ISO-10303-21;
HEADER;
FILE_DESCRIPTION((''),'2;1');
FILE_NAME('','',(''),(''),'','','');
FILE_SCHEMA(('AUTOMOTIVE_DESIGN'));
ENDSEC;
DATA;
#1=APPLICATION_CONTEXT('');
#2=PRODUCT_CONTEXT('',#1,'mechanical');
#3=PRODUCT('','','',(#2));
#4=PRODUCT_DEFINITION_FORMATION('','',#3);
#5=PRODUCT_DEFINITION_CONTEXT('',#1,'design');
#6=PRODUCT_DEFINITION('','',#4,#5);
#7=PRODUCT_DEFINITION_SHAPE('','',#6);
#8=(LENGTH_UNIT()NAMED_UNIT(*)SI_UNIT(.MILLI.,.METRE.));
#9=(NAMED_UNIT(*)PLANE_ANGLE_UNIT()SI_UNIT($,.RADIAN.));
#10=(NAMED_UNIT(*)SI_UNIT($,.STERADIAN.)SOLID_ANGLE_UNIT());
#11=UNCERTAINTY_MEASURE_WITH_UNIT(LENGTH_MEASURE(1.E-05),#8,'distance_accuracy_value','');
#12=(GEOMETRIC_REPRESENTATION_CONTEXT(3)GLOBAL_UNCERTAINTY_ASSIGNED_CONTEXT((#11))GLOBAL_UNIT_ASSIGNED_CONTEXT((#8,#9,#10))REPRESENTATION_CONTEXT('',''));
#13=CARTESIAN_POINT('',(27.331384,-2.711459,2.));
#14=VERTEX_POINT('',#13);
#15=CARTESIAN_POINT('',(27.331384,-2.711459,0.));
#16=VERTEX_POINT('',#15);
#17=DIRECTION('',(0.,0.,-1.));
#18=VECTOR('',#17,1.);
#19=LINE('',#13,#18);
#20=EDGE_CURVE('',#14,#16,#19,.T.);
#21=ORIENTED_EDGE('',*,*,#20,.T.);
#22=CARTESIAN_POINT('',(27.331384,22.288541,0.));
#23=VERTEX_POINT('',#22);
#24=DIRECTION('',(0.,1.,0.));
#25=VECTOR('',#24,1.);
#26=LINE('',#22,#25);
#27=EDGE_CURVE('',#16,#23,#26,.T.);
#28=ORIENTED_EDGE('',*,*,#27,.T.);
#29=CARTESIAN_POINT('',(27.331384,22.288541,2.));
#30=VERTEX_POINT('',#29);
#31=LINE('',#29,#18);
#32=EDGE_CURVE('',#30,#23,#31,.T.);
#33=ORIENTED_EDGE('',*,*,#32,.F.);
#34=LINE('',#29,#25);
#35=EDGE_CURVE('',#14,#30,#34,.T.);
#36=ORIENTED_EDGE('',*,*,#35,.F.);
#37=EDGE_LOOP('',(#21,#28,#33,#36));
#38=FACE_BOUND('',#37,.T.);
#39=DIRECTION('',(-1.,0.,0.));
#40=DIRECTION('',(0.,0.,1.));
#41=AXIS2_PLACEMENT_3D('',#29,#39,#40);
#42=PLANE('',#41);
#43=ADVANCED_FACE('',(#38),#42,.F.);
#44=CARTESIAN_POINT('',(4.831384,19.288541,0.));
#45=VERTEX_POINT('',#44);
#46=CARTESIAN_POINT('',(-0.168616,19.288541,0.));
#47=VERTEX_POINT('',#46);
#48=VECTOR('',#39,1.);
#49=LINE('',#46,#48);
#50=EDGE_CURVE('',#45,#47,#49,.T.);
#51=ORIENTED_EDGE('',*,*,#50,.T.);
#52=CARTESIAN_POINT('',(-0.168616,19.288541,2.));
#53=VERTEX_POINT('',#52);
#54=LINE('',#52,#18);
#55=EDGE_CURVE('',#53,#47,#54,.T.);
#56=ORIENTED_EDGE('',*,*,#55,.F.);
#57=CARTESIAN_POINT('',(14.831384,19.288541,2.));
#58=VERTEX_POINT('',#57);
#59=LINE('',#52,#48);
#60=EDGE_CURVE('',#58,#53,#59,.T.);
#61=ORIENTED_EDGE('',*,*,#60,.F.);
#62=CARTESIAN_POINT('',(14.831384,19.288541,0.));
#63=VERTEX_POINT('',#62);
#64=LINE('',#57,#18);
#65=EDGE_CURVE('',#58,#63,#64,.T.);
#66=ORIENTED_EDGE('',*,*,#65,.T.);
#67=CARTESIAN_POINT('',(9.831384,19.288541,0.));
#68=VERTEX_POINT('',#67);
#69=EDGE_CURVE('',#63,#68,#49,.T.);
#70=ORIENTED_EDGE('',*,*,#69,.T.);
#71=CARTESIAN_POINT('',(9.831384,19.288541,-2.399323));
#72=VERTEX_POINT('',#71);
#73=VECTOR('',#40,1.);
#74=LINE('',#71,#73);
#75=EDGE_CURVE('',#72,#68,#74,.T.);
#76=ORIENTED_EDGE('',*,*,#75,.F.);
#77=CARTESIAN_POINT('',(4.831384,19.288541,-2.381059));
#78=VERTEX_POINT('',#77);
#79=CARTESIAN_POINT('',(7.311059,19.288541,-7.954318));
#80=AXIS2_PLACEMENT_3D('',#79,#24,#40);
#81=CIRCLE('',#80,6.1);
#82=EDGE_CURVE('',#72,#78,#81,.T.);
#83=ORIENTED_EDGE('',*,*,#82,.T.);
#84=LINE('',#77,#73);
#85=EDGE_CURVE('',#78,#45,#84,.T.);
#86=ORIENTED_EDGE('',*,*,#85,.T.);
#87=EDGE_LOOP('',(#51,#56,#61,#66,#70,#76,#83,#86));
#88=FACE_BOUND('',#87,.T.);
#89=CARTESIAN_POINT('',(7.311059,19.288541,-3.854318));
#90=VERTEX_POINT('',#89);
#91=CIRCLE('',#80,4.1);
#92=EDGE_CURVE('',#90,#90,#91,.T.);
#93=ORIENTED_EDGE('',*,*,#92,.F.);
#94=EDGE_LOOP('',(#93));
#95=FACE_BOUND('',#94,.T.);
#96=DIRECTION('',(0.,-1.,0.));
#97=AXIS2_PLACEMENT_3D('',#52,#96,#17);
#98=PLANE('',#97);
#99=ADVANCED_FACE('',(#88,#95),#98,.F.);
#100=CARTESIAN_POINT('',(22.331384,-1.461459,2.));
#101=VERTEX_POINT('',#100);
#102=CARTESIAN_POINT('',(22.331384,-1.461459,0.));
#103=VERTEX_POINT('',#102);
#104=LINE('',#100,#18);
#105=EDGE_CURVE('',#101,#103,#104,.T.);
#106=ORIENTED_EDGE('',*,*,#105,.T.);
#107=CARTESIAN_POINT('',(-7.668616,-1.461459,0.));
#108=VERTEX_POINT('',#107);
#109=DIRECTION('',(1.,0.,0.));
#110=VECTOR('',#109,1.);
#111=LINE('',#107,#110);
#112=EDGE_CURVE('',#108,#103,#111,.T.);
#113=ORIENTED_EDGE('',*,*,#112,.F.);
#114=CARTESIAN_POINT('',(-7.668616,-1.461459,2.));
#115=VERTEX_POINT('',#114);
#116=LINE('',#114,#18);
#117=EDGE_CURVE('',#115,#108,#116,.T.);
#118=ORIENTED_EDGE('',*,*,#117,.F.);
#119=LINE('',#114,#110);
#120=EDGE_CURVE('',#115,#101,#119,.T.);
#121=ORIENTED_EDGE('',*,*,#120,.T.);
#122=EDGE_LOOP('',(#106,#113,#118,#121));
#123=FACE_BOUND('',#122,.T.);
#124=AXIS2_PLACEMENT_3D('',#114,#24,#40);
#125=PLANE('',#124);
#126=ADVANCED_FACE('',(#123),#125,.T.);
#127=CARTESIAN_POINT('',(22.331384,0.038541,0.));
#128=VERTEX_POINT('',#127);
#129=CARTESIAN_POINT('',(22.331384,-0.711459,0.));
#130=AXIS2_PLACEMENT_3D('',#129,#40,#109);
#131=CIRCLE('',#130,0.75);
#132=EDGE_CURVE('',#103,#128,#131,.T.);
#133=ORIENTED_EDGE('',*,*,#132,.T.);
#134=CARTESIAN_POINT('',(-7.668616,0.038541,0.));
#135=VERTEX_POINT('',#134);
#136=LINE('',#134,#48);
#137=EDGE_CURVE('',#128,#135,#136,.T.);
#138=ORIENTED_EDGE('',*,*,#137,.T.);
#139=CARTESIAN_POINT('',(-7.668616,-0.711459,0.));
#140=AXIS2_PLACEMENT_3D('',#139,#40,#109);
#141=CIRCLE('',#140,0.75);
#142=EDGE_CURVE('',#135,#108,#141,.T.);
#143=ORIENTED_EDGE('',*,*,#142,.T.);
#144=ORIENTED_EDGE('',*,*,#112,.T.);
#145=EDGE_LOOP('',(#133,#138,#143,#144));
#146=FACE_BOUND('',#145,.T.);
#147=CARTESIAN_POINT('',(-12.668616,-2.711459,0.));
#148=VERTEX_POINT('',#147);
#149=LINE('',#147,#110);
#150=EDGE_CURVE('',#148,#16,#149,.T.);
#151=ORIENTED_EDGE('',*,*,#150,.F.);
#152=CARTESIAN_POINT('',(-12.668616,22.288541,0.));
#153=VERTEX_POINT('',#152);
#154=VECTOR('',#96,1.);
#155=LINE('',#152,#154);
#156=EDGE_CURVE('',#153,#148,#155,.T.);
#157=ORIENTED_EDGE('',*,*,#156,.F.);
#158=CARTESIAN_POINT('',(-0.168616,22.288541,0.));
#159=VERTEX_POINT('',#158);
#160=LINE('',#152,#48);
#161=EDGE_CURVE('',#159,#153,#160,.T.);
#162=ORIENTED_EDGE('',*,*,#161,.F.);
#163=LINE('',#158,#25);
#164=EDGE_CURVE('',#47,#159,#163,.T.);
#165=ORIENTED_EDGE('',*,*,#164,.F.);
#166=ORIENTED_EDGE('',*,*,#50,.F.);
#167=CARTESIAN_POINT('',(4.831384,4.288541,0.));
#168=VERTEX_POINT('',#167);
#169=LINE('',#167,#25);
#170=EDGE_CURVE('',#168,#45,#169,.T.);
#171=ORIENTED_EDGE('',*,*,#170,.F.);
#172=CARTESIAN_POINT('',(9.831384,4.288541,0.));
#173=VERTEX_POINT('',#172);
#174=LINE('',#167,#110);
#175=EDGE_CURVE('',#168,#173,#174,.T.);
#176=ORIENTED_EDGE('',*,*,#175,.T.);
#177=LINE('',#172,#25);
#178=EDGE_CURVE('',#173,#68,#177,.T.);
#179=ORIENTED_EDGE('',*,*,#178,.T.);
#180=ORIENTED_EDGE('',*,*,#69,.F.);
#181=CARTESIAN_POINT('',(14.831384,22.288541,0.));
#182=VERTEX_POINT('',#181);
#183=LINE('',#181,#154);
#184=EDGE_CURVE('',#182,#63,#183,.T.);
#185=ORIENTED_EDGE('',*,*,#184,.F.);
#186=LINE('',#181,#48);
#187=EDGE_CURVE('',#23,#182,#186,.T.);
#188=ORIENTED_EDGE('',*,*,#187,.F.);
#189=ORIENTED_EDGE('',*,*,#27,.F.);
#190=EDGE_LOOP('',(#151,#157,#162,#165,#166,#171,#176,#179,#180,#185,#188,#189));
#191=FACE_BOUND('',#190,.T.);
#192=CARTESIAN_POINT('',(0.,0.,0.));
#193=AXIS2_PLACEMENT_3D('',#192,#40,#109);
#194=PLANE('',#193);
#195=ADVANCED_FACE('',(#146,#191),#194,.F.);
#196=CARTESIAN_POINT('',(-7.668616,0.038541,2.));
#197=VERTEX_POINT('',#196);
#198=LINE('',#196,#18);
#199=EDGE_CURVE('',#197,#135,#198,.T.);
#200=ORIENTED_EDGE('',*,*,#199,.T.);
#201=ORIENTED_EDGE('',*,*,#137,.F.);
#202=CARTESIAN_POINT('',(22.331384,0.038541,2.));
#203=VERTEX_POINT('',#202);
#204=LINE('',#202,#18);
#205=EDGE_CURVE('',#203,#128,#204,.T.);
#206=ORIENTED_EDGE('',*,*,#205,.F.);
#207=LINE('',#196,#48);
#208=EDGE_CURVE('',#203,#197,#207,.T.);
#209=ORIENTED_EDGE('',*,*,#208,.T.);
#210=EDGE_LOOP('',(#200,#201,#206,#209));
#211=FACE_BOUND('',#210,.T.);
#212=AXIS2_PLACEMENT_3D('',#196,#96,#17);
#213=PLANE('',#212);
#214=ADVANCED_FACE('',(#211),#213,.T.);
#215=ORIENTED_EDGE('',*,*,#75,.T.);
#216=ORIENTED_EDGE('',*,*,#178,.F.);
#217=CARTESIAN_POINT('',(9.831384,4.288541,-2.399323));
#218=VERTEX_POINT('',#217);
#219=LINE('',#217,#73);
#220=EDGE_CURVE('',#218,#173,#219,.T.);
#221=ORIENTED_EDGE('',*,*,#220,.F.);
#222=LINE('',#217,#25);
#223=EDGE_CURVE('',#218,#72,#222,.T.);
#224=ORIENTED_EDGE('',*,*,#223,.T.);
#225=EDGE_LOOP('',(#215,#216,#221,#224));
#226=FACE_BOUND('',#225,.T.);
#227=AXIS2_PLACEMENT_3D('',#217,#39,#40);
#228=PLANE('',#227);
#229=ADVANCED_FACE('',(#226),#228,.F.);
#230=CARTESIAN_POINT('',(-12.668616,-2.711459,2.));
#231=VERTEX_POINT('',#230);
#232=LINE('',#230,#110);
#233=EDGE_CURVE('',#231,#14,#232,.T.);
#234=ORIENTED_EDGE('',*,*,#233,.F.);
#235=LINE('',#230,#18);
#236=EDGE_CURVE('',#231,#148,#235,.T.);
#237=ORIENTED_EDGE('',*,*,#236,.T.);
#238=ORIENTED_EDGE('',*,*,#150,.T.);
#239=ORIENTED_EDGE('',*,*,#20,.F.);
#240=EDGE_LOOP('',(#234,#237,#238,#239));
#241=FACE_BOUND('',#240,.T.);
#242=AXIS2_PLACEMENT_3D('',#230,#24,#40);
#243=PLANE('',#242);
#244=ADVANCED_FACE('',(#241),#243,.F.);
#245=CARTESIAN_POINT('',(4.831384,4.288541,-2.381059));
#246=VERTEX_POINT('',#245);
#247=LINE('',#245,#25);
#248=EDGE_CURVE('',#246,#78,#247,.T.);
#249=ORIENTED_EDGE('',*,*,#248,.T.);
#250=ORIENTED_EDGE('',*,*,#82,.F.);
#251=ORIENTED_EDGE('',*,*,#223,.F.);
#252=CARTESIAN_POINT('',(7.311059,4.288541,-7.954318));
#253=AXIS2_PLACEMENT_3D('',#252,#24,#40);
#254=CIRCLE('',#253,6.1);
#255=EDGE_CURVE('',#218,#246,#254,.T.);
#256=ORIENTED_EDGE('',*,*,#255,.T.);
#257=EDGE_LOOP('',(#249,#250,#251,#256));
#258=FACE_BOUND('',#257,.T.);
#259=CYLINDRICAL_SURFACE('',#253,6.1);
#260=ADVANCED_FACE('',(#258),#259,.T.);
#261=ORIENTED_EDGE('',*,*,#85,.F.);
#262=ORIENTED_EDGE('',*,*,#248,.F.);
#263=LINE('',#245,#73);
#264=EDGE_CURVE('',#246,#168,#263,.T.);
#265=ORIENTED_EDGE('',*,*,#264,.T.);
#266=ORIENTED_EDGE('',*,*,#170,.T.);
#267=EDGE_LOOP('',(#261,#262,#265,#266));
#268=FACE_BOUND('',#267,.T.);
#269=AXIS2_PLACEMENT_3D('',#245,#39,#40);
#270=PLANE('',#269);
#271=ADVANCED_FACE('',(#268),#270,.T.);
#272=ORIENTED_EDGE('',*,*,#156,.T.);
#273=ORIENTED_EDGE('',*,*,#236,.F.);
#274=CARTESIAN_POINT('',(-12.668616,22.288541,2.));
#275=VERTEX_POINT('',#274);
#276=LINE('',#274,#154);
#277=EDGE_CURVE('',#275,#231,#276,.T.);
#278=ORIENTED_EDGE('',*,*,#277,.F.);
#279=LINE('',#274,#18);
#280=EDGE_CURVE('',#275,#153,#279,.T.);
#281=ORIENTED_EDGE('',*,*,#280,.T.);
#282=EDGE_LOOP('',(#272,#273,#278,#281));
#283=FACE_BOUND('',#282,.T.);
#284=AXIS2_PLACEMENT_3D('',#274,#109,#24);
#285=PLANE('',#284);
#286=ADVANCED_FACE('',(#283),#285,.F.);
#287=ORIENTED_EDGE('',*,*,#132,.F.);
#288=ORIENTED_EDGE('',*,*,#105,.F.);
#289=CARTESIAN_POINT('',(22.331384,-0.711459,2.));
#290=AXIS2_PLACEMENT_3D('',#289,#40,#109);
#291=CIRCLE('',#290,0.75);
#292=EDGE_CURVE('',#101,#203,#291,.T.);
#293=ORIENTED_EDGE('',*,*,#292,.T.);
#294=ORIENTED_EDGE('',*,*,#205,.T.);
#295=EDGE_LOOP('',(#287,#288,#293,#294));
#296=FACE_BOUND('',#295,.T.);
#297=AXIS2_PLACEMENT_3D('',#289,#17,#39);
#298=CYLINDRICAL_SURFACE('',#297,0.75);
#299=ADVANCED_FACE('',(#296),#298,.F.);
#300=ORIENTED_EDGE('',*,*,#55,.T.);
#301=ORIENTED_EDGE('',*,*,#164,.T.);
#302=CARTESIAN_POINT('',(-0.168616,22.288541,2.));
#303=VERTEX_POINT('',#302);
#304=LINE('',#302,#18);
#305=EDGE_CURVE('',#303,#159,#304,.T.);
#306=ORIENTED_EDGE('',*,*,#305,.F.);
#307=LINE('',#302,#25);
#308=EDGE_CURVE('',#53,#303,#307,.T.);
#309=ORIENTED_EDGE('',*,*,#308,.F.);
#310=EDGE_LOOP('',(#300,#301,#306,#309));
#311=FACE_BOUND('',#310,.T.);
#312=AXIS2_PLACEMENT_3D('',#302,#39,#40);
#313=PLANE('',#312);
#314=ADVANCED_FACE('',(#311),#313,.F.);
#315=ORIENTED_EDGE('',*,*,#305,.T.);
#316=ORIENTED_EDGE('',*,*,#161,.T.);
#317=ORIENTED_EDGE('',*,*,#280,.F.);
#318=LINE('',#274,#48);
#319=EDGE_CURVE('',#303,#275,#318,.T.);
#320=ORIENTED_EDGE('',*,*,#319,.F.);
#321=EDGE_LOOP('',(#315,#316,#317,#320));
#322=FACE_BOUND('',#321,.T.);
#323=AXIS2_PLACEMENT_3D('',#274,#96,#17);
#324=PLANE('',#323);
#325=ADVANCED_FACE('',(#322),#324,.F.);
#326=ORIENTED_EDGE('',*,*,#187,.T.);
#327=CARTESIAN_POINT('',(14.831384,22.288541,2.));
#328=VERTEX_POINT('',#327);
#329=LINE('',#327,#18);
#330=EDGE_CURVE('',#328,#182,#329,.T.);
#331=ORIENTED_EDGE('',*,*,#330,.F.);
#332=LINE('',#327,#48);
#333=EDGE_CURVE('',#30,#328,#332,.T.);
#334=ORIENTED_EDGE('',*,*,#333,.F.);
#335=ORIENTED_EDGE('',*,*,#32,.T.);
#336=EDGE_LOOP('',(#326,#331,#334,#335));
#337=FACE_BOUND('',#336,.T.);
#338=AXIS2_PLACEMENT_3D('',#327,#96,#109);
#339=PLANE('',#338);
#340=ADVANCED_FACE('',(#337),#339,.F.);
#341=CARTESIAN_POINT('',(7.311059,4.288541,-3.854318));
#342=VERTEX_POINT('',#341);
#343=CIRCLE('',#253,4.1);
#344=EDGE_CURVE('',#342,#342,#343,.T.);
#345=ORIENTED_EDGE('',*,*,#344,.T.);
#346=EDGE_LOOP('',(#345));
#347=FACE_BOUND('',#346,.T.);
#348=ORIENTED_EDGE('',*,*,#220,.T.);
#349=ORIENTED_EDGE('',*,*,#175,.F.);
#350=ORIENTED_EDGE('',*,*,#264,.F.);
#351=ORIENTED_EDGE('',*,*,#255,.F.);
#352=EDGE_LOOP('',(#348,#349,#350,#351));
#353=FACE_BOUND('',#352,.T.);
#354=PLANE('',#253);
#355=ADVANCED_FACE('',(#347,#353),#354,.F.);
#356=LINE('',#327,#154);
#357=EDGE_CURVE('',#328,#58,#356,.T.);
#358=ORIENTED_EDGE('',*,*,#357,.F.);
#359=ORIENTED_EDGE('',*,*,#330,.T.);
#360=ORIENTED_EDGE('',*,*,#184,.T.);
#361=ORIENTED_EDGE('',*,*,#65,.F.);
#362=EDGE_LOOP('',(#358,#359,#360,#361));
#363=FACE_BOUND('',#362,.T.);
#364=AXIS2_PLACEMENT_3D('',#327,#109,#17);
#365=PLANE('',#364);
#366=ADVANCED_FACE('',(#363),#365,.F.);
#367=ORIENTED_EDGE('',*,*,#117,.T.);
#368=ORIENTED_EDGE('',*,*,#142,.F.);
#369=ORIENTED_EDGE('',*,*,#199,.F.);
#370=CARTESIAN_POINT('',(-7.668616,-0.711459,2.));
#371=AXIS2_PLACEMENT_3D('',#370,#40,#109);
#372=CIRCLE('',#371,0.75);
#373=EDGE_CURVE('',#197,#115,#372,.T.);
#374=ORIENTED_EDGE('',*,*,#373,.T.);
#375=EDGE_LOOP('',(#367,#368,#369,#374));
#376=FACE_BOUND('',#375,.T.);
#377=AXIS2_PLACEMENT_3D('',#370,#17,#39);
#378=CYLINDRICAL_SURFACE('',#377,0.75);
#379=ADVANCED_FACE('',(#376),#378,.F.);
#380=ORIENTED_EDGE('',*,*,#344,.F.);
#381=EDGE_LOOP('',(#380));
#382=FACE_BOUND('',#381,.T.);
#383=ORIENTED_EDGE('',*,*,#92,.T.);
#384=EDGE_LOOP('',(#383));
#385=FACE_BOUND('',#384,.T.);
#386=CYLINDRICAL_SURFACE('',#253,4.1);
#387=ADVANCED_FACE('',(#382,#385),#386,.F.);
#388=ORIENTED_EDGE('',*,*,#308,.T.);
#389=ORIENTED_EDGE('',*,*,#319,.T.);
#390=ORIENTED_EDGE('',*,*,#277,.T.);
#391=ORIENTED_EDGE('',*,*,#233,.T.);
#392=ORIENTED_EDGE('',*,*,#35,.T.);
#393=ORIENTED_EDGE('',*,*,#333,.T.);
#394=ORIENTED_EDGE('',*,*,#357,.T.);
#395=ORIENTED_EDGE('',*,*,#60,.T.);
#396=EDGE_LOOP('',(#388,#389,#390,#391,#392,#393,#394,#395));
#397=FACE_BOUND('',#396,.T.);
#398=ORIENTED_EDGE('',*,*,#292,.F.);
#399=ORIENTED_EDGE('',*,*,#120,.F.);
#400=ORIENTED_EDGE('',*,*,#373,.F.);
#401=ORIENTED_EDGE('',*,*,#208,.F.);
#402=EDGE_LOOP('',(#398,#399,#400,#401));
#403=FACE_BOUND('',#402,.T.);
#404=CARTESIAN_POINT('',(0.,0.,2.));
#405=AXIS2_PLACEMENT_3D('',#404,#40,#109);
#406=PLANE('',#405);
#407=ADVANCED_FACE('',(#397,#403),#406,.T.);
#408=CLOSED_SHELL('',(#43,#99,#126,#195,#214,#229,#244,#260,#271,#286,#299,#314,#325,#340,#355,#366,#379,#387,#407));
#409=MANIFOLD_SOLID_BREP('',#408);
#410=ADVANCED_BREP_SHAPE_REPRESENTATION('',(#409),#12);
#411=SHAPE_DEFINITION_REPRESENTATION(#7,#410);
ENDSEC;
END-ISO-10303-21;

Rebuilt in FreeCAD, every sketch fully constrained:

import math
import FreeCAD as App
import Part
import Sketcher
Q = App.Units.Quantity


def add_polygon(sketch, points):
    """Adds a closed chain of lines whose ends are joined by coincident constraints."""
    first, n = sketch.GeometryCount, len(points)
    for a, b in zip(points, points[1:] + points[:1]):
        sketch.addGeometry(Part.LineSegment(App.Vector(*a, 0), App.Vector(*b, 0)), False)
    for i in range(n):
        sketch.addConstraint(Sketcher.Constraint("Coincident", first + i, 2, first + (i + 1) % n, 1))

doc = App.newDocument("Part")
body = doc.addObject("PartDesign::Body", "Body")

sketch1 = body.newObject("Sketcher::SketchObject", "Sketch")
sketch1.AttachmentSupport = (doc.getObject("XY_Plane"), [""])
sketch1.MapMode = "FlatFace"
add_polygon(sketch1, [(-0.168616, 22.288541), (-12.668616, 22.288541), (-12.668616, -2.711459), (27.331384, -2.711459), (27.331384, 22.288541), (14.831384, 22.288541), (14.831384, 19.288541), (-0.168616, 19.288541)])
sketch1.addGeometry(Part.LineSegment(App.Vector(-7.668616, 0.038541, 0), App.Vector(22.331384, 0.038541, 0)), False)
sketch1.addGeometry(Part.ArcOfCircle(Part.Circle(App.Vector(22.331384, -0.711459, 0), App.Vector(0, 0, 1), 0.75), math.radians(-90), math.radians(90)), False)
sketch1.addGeometry(Part.LineSegment(App.Vector(22.331384, -1.461459, 0), App.Vector(-7.668616, -1.461459, 0)), False)
sketch1.addGeometry(Part.ArcOfCircle(Part.Circle(App.Vector(-7.668616, -0.711459, 0), App.Vector(0, 0, 1), 0.75), math.radians(90), math.radians(270)), False)
sketch1.addConstraint(Sketcher.Constraint("Tangent", 8, 2, 9, 2))
sketch1.addConstraint(Sketcher.Constraint("Tangent", 9, 1, 10, 1))
sketch1.addConstraint(Sketcher.Constraint("Tangent", 10, 2, 11, 2))
sketch1.addConstraint(Sketcher.Constraint("Tangent", 11, 1, 8, 1))
sketch1.addConstraint(Sketcher.Constraint("Horizontal", 0))
sketch1.addConstraint(Sketcher.Constraint("Vertical", 1))
sketch1.addConstraint(Sketcher.Constraint("Horizontal", 2))
sketch1.addConstraint(Sketcher.Constraint("Vertical", 3))
sketch1.addConstraint(Sketcher.Constraint("Horizontal", 4))
sketch1.addConstraint(Sketcher.Constraint("Vertical", 5))
sketch1.addConstraint(Sketcher.Constraint("Horizontal", 6))
sketch1.addConstraint(Sketcher.Constraint("Vertical", 7))
sketch1.addConstraint(Sketcher.Constraint("Horizontal", 8))
sketch1.addConstraint(Sketcher.Constraint("Horizontal", 10))
sketch1.addConstraint(Sketcher.Constraint("Horizontal", 0, 2, 3, 2))
sketch1.addConstraint(Sketcher.Constraint("Equal", 0, 4))
sketch1.addConstraint(Sketcher.Constraint("DistanceX", 2, 1, 2, 2, Q("40 mm")))
sketch1.addConstraint(Sketcher.Constraint("DistanceX", 6, 2, 6, 1, Q("15 mm")))
sketch1.addConstraint(Sketcher.Constraint("DistanceX", 8, 1, 8, 2, Q("30 mm")))
sketch1.addConstraint(Sketcher.Constraint("DistanceY", 1, 2, 1, 1, Q("25 mm")))
sketch1.addConstraint(Sketcher.Constraint("DistanceY", 5, 2, 5, 1, Q("3 mm")))
sketch1.addConstraint(Sketcher.Constraint("Radius", 9, Q("0.75 mm")))
sketch1.addConstraint(Sketcher.Constraint("DistanceX", 0, 2, 11, 3, Q("5 mm")))
sketch1.addConstraint(Sketcher.Constraint("DistanceY", 11, 3, 0, 2, Q("23 mm")))
sketch1.addConstraint(Sketcher.Constraint("DistanceY", 9, 3, -1, 1, Q("0.711459 mm")))
sketch1.addConstraint(Sketcher.Constraint("DistanceX", -1, 1, 9, 3, Q("22.331384 mm")))
pad1 = body.newObject("PartDesign::Pad", "Pad")
pad1.Profile = sketch1
pad1.Length = 2

sketch2 = body.newObject("Sketcher::SketchObject", "Sketch001")
sketch2.AttachmentSupport = (doc.getObject("XZ_Plane"), [""])
sketch2.MapMode = "FlatFace"
sketch2.AttachmentOffset = App.Placement(App.Vector(0, 0, -19.288541), App.Rotation())
sketch2.addGeometry(Part.LineSegment(App.Vector(4.831384, -2.381059, 0), App.Vector(4.831384, 0, 0)), False)
sketch2.addGeometry(Part.LineSegment(App.Vector(4.831384, 0, 0), App.Vector(9.831384, 0, 0)), False)
sketch2.addGeometry(Part.LineSegment(App.Vector(9.831384, 0, 0), App.Vector(9.831384, -2.399323, 0)), False)
sketch2.addGeometry(Part.ArcOfCircle(Part.Circle(App.Vector(7.311059, -7.954318, 0), App.Vector(0, 0, 1), 6.1), math.radians(113.985414), math.radians(425.595996)), False)
sketch2.addGeometry(Part.Circle(App.Vector(7.311059, -7.954318, 0), App.Vector(0, 0, 1), 4.1), False)
sketch2.addConstraint(Sketcher.Constraint("Coincident", 0, 2, 1, 1))
sketch2.addConstraint(Sketcher.Constraint("Coincident", 1, 2, 2, 1))
sketch2.addConstraint(Sketcher.Constraint("Coincident", 2, 2, 3, 2))
sketch2.addConstraint(Sketcher.Constraint("Coincident", 3, 1, 0, 1))
sketch2.addConstraint(Sketcher.Constraint("Vertical", 0))
sketch2.addConstraint(Sketcher.Constraint("Horizontal", 1))
sketch2.addConstraint(Sketcher.Constraint("Vertical", 2))
sketch2.addConstraint(Sketcher.Constraint("Coincident", 4, 3, 3, 3))
sketch2.addConstraint(Sketcher.Constraint("PointOnObject", 0, 2, -1))
sketch2.addConstraint(Sketcher.Constraint("Diameter", 4, Q("8.2 mm")))
sketch2.addConstraint(Sketcher.Constraint("Radius", 3, Q("6.1 mm")))
sketch2.addConstraint(Sketcher.Constraint("DistanceX", 1, 1, 1, 2, Q("5 mm")))
sketch2.addConstraint(Sketcher.Constraint("DistanceY", 0, 1, 0, 2, Q("2.381059 mm")))
sketch2.addConstraint(Sketcher.Constraint("DistanceY", 2, 2, 2, 1, Q("2.399323 mm")))
sketch2.addConstraint(Sketcher.Constraint("DistanceX", -1, 1, 3, 3, Q("7.311059 mm")))
pad2 = body.newObject("PartDesign::Pad", "Pad001")
pad2.Profile = sketch2
pad2.Length = 15

doc.recompute()
